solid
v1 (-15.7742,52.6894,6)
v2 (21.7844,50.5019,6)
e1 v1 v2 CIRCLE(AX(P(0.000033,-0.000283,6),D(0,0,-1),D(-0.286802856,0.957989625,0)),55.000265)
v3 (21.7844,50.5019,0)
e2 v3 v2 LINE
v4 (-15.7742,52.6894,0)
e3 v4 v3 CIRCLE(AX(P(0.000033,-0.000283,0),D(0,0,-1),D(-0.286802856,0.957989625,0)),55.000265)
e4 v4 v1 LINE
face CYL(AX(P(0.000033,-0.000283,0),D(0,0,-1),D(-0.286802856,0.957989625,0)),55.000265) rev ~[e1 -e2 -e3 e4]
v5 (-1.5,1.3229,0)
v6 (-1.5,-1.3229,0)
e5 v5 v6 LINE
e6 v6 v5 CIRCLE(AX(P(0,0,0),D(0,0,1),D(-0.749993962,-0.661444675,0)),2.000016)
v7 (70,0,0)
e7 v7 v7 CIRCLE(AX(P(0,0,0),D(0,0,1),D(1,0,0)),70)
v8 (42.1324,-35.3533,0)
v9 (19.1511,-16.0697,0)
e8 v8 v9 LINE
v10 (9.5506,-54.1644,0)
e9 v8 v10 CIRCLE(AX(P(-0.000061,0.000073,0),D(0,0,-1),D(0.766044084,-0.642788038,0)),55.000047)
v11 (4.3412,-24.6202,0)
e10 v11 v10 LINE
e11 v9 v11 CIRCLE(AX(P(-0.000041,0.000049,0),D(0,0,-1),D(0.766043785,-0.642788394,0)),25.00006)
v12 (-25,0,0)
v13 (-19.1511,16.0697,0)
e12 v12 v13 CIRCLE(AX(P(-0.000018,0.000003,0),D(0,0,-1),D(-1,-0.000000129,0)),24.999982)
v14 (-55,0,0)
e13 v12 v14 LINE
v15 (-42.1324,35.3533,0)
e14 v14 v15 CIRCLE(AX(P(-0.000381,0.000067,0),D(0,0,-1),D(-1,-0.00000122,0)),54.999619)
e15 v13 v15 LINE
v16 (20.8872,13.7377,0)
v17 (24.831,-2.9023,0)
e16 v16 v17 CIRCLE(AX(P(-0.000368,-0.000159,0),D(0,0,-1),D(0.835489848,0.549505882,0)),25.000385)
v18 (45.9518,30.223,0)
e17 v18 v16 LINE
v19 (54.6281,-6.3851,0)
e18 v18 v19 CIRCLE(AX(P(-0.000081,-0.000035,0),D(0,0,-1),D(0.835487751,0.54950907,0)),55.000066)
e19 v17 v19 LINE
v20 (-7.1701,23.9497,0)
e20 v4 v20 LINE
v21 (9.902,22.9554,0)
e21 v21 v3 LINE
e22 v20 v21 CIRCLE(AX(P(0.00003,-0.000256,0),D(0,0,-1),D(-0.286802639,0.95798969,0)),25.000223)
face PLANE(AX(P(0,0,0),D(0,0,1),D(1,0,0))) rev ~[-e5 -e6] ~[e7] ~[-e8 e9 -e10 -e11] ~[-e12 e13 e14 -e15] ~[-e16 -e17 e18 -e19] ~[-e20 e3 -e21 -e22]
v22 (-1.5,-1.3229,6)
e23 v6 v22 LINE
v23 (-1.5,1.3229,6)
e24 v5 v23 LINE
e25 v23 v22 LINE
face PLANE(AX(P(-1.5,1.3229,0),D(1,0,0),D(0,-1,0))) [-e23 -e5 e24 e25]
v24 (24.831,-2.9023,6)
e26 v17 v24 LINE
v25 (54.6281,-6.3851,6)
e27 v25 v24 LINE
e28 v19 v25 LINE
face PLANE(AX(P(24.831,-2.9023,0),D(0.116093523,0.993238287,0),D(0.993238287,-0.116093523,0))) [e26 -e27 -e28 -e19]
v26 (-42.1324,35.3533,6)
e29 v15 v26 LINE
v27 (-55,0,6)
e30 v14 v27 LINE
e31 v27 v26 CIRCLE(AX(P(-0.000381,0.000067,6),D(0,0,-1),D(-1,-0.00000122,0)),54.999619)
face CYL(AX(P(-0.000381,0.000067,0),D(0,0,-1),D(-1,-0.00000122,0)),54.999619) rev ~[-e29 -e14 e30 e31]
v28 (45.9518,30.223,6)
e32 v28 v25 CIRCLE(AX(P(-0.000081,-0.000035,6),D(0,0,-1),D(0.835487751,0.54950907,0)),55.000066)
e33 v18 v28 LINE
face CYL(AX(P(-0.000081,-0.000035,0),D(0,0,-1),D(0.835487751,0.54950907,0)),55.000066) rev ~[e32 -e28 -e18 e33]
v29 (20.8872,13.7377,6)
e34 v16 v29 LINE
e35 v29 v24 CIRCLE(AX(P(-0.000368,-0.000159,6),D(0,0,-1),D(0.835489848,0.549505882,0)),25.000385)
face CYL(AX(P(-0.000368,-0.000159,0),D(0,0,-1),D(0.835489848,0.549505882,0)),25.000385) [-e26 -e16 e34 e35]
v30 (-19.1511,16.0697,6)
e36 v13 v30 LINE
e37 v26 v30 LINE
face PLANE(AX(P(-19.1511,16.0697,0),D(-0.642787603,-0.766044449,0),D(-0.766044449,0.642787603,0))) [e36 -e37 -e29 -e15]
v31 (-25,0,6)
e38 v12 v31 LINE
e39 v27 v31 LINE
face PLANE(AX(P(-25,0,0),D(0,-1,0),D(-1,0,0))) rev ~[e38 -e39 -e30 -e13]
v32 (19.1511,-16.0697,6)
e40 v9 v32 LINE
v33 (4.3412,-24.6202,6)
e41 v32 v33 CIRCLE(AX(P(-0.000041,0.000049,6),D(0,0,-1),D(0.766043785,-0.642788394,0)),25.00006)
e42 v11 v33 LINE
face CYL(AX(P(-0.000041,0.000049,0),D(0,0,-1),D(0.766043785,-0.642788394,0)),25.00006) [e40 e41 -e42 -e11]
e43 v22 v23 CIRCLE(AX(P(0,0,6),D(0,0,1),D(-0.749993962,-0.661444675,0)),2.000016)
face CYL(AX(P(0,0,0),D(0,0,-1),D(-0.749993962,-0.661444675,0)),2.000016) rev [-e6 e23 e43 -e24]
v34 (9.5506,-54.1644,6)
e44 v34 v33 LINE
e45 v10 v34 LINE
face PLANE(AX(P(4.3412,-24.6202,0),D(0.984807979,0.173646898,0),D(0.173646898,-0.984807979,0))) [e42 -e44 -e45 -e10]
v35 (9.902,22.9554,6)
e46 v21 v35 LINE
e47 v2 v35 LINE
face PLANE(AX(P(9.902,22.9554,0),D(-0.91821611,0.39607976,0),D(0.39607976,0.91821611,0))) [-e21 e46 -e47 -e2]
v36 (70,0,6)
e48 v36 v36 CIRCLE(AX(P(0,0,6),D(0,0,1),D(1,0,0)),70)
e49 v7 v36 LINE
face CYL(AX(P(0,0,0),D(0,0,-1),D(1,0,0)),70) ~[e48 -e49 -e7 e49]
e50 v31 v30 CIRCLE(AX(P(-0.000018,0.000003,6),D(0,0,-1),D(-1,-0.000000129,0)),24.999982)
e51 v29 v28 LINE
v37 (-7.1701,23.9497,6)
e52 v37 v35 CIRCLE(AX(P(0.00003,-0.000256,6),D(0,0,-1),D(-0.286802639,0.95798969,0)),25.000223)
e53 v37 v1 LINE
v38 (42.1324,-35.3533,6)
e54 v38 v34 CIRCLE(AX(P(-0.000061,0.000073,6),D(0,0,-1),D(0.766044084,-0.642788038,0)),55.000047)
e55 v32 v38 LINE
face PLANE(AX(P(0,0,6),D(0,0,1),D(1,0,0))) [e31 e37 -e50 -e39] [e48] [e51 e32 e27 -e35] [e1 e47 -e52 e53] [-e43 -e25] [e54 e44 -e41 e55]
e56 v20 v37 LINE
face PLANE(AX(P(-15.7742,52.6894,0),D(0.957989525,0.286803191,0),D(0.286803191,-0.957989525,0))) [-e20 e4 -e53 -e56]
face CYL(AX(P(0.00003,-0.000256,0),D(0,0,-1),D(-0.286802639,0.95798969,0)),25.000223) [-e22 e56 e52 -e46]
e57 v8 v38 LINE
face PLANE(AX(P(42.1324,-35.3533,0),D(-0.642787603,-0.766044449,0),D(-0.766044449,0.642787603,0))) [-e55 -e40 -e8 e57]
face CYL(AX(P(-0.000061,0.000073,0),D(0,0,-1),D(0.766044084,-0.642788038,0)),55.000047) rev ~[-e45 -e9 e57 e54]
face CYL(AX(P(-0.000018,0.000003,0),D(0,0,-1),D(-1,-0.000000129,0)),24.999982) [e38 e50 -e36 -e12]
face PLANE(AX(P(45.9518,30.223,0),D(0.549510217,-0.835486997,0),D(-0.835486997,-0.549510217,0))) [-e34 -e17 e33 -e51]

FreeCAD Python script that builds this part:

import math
import FreeCAD as App
import Part
import Sketcher
Q = App.Units.Quantity

doc = App.newDocument("Part")
body = doc.addObject("PartDesign::Body", "Body")

# Sketch on XY plane
sketch1 = body.newObject("Sketcher::SketchObject", "Sketch")
sketch1.AttachmentSupport = (doc.getObject("XY_Plane"), [""])
sketch1.MapMode = "FlatFace"
sketch1.addGeometry([
    Part.Circle(App.Vector(0, 0, 0), App.Vector(0, 0, 1), 70),
    Part.ArcOfCircle(Part.Circle(App.Vector(0, 0, 0), App.Vector(0, 0, 1), 2), math.radians(-139), math.radians(139)),
    Part.LineSegment(App.Vector(-1.5, -1.3, 0), App.Vector(-1.5, 1.3, 0)),
], False)
sketch1.addConstraint([
    Sketcher.Constraint("Coincident", 1, 1, 2, 1),
    Sketcher.Constraint("Coincident", 2, 2, 1, 2),
    Sketcher.Constraint("Vertical", 2),
    Sketcher.Constraint("Coincident", 0, 3, -1, 1),
    Sketcher.Constraint("Coincident", 1, 3, -1, 1),
    Sketcher.Constraint("Diameter", 0, 140.0),
    Sketcher.Constraint("Radius", 1, 2.0),
    Sketcher.Constraint("DistanceX", 1, 1, -1, 1, 1.5),
])
pad1 = body.newObject("PartDesign::Pad", "Pad")
pad1.Profile = sketch1
pad1.Length = 6

# Sketch on XY plane
sketch2 = body.newObject("Sketcher::SketchObject", "Sketch001")
sketch2.AttachmentSupport = (doc.getObject("XY_Plane"), [""])
sketch2.MapMode = "FlatFace"
sketch2.addGeometry([
    Part.LineSegment(App.Vector(-25, 0, 0), App.Vector(-55, 0, 0)),  # 0
    Part.ArcOfCircle(Part.Circle(App.Vector(0, 0, 0), App.Vector(0, 0, 1), 55), math.radians(140), math.radians(180)),  # 1
    Part.LineSegment(App.Vector(-42, 35, 0), App.Vector(-19, 16, 0)),  # 2
    Part.ArcOfCircle(Part.Circle(App.Vector(0, 0, 0), App.Vector(0, 0, 1), 25), math.radians(140), math.radians(180)),  # 3
    Part.LineSegment(App.Vector(22, 51, 0), App.Vector(10, 23, 0)),  # 4
    Part.ArcOfCircle(Part.Circle(App.Vector(0, 0, 0), App.Vector(0, 0, 1), 25), math.radians(67), math.radians(107)),  # 5
    Part.LineSegment(App.Vector(-7, 24, 0), App.Vector(-16, 53, 0)),  # 6
    Part.ArcOfCircle(Part.Circle(App.Vector(0, 0, 0), App.Vector(0, 0, 1), 55), math.radians(67), math.radians(107)),  # 7
    Part.LineSegment(App.Vector(55, -6, 0), App.Vector(25, -3, 0)),  # 8
    Part.ArcOfCircle(Part.Circle(App.Vector(0, 0, 0), App.Vector(0, 0, 1), 25), math.radians(-7), math.radians(33)),  # 9
    Part.LineSegment(App.Vector(21, 14, 0), App.Vector(46, 30, 0)),  # 10
    Part.ArcOfCircle(Part.Circle(App.Vector(0, 0, 0), App.Vector(0, 0, 1), 55), math.radians(-7), math.radians(33)),  # 11
    Part.LineSegment(App.Vector(10, -54, 0), App.Vector(4, -25, 0)),  # 12
    Part.ArcOfCircle(Part.Circle(App.Vector(0, 0, 0), App.Vector(0, 0, 1), 25), math.radians(-80), math.radians(-40)),  # 13
    Part.LineSegment(App.Vector(19, -16, 0), App.Vector(42, -35, 0)),  # 14
    Part.ArcOfCircle(Part.Circle(App.Vector(0, 0, 0), App.Vector(0, 0, 1), 55), math.radians(-80), math.radians(-40)),  # 15
], False)
sketch2.addConstraint([
    Sketcher.Constraint("Coincident", 0, 2, 1, 2),
    Sketcher.Constraint("Coincident", 1, 1, 2, 1),
    Sketcher.Constraint("Coincident", 2, 2, 3, 1),
    Sketcher.Constraint("Coincident", 3, 2, 0, 1),
    Sketcher.Constraint("Coincident", 4, 2, 5, 1),
    Sketcher.Constraint("Coincident", 5, 2, 6, 1),
    Sketcher.Constraint("Coincident", 6, 2, 7, 2),
    Sketcher.Constraint("Coincident", 7, 1, 4, 1),
    Sketcher.Constraint("Coincident", 8, 2, 9, 1),
    Sketcher.Constraint("Coincident", 9, 2, 10, 1),
    Sketcher.Constraint("Coincident", 10, 2, 11, 2),
    Sketcher.Constraint("Coincident", 11, 1, 8, 1),
    Sketcher.Constraint("Coincident", 12, 2, 13, 1),
    Sketcher.Constraint("Coincident", 13, 2, 14, 1),
    Sketcher.Constraint("Coincident", 14, 2, 15, 2),
    Sketcher.Constraint("Coincident", 15, 1, 12, 1),
    Sketcher.Constraint("Horizontal", 0),
    Sketcher.Constraint("Coincident", 1, 3, -1, 1),
    Sketcher.Constraint("Coincident", 3, 3, -1, 1),
    Sketcher.Constraint("Coincident", 5, 3, -1, 1),
    Sketcher.Constraint("Coincident", 7, 3, -1, 1),
    Sketcher.Constraint("Coincident", 9, 3, -1, 1),
    Sketcher.Constraint("Coincident", 11, 3, -1, 1),
    Sketcher.Constraint("Coincident", 13, 3, -1, 1),
    Sketcher.Constraint("Coincident", 15, 3, -1, 1),
    Sketcher.Constraint("Equal", 3, 5),
    Sketcher.Constraint("Equal", 1, 7),
    Sketcher.Constraint("Equal", 5, 9),
    Sketcher.Constraint("Equal", 7, 11),
    Sketcher.Constraint("Equal", 9, 13),
    Sketcher.Constraint("Equal", 11, 15),
    Sketcher.Constraint("PointOnObject", 0, 2, -1),
    Sketcher.Constraint("Parallel", 2, 14),
    Sketcher.Constraint("Radius", 1, 55.0),
    Sketcher.Constraint("Radius", 3, 25.0),
    Sketcher.Constraint("Angle", 2, Q("-40 deg")),
    Sketcher.Constraint("Angle", 12, Q("100 deg")),
    Sketcher.Constraint("DistanceX", 5, 2, -1, 1, 7.17),
    Sketcher.Constraint("DistanceY", 2, 2, 5, 2, 7.88),
    Sketcher.Constraint("DistanceY", 8, 2, 9, 2, 16.64),
    Sketcher.Constraint("DistanceX", 13, 2, 8, 2, 5.68),
    Sketcher.Constraint("DistanceX", 12, 2, 13, 2, 14.81),
    Sketcher.Constraint("DistanceX", -1, 1, 4, 2, 9.902),
    Sketcher.Constraint("DistanceY", -1, 1, 7, 1, 50.502),
    Sketcher.Constraint("DistanceX", -1, 1, 8, 2, 24.831),
    Sketcher.Constraint("DistanceY", -1, 1, 10, 2, 30.223),
    Sketcher.Constraint("DistanceX", -1, 1, 11, 1, 54.628),
    Sketcher.Constraint("DistanceX", 6, 2, 5, 2, 8.604),
])
pocket1 = body.newObject("PartDesign::Pocket", "Pocket")
pocket1.Profile = sketch2
pocket1.Type = "ThroughAll"
pocket1.Reversed = True

doc.recompute()
